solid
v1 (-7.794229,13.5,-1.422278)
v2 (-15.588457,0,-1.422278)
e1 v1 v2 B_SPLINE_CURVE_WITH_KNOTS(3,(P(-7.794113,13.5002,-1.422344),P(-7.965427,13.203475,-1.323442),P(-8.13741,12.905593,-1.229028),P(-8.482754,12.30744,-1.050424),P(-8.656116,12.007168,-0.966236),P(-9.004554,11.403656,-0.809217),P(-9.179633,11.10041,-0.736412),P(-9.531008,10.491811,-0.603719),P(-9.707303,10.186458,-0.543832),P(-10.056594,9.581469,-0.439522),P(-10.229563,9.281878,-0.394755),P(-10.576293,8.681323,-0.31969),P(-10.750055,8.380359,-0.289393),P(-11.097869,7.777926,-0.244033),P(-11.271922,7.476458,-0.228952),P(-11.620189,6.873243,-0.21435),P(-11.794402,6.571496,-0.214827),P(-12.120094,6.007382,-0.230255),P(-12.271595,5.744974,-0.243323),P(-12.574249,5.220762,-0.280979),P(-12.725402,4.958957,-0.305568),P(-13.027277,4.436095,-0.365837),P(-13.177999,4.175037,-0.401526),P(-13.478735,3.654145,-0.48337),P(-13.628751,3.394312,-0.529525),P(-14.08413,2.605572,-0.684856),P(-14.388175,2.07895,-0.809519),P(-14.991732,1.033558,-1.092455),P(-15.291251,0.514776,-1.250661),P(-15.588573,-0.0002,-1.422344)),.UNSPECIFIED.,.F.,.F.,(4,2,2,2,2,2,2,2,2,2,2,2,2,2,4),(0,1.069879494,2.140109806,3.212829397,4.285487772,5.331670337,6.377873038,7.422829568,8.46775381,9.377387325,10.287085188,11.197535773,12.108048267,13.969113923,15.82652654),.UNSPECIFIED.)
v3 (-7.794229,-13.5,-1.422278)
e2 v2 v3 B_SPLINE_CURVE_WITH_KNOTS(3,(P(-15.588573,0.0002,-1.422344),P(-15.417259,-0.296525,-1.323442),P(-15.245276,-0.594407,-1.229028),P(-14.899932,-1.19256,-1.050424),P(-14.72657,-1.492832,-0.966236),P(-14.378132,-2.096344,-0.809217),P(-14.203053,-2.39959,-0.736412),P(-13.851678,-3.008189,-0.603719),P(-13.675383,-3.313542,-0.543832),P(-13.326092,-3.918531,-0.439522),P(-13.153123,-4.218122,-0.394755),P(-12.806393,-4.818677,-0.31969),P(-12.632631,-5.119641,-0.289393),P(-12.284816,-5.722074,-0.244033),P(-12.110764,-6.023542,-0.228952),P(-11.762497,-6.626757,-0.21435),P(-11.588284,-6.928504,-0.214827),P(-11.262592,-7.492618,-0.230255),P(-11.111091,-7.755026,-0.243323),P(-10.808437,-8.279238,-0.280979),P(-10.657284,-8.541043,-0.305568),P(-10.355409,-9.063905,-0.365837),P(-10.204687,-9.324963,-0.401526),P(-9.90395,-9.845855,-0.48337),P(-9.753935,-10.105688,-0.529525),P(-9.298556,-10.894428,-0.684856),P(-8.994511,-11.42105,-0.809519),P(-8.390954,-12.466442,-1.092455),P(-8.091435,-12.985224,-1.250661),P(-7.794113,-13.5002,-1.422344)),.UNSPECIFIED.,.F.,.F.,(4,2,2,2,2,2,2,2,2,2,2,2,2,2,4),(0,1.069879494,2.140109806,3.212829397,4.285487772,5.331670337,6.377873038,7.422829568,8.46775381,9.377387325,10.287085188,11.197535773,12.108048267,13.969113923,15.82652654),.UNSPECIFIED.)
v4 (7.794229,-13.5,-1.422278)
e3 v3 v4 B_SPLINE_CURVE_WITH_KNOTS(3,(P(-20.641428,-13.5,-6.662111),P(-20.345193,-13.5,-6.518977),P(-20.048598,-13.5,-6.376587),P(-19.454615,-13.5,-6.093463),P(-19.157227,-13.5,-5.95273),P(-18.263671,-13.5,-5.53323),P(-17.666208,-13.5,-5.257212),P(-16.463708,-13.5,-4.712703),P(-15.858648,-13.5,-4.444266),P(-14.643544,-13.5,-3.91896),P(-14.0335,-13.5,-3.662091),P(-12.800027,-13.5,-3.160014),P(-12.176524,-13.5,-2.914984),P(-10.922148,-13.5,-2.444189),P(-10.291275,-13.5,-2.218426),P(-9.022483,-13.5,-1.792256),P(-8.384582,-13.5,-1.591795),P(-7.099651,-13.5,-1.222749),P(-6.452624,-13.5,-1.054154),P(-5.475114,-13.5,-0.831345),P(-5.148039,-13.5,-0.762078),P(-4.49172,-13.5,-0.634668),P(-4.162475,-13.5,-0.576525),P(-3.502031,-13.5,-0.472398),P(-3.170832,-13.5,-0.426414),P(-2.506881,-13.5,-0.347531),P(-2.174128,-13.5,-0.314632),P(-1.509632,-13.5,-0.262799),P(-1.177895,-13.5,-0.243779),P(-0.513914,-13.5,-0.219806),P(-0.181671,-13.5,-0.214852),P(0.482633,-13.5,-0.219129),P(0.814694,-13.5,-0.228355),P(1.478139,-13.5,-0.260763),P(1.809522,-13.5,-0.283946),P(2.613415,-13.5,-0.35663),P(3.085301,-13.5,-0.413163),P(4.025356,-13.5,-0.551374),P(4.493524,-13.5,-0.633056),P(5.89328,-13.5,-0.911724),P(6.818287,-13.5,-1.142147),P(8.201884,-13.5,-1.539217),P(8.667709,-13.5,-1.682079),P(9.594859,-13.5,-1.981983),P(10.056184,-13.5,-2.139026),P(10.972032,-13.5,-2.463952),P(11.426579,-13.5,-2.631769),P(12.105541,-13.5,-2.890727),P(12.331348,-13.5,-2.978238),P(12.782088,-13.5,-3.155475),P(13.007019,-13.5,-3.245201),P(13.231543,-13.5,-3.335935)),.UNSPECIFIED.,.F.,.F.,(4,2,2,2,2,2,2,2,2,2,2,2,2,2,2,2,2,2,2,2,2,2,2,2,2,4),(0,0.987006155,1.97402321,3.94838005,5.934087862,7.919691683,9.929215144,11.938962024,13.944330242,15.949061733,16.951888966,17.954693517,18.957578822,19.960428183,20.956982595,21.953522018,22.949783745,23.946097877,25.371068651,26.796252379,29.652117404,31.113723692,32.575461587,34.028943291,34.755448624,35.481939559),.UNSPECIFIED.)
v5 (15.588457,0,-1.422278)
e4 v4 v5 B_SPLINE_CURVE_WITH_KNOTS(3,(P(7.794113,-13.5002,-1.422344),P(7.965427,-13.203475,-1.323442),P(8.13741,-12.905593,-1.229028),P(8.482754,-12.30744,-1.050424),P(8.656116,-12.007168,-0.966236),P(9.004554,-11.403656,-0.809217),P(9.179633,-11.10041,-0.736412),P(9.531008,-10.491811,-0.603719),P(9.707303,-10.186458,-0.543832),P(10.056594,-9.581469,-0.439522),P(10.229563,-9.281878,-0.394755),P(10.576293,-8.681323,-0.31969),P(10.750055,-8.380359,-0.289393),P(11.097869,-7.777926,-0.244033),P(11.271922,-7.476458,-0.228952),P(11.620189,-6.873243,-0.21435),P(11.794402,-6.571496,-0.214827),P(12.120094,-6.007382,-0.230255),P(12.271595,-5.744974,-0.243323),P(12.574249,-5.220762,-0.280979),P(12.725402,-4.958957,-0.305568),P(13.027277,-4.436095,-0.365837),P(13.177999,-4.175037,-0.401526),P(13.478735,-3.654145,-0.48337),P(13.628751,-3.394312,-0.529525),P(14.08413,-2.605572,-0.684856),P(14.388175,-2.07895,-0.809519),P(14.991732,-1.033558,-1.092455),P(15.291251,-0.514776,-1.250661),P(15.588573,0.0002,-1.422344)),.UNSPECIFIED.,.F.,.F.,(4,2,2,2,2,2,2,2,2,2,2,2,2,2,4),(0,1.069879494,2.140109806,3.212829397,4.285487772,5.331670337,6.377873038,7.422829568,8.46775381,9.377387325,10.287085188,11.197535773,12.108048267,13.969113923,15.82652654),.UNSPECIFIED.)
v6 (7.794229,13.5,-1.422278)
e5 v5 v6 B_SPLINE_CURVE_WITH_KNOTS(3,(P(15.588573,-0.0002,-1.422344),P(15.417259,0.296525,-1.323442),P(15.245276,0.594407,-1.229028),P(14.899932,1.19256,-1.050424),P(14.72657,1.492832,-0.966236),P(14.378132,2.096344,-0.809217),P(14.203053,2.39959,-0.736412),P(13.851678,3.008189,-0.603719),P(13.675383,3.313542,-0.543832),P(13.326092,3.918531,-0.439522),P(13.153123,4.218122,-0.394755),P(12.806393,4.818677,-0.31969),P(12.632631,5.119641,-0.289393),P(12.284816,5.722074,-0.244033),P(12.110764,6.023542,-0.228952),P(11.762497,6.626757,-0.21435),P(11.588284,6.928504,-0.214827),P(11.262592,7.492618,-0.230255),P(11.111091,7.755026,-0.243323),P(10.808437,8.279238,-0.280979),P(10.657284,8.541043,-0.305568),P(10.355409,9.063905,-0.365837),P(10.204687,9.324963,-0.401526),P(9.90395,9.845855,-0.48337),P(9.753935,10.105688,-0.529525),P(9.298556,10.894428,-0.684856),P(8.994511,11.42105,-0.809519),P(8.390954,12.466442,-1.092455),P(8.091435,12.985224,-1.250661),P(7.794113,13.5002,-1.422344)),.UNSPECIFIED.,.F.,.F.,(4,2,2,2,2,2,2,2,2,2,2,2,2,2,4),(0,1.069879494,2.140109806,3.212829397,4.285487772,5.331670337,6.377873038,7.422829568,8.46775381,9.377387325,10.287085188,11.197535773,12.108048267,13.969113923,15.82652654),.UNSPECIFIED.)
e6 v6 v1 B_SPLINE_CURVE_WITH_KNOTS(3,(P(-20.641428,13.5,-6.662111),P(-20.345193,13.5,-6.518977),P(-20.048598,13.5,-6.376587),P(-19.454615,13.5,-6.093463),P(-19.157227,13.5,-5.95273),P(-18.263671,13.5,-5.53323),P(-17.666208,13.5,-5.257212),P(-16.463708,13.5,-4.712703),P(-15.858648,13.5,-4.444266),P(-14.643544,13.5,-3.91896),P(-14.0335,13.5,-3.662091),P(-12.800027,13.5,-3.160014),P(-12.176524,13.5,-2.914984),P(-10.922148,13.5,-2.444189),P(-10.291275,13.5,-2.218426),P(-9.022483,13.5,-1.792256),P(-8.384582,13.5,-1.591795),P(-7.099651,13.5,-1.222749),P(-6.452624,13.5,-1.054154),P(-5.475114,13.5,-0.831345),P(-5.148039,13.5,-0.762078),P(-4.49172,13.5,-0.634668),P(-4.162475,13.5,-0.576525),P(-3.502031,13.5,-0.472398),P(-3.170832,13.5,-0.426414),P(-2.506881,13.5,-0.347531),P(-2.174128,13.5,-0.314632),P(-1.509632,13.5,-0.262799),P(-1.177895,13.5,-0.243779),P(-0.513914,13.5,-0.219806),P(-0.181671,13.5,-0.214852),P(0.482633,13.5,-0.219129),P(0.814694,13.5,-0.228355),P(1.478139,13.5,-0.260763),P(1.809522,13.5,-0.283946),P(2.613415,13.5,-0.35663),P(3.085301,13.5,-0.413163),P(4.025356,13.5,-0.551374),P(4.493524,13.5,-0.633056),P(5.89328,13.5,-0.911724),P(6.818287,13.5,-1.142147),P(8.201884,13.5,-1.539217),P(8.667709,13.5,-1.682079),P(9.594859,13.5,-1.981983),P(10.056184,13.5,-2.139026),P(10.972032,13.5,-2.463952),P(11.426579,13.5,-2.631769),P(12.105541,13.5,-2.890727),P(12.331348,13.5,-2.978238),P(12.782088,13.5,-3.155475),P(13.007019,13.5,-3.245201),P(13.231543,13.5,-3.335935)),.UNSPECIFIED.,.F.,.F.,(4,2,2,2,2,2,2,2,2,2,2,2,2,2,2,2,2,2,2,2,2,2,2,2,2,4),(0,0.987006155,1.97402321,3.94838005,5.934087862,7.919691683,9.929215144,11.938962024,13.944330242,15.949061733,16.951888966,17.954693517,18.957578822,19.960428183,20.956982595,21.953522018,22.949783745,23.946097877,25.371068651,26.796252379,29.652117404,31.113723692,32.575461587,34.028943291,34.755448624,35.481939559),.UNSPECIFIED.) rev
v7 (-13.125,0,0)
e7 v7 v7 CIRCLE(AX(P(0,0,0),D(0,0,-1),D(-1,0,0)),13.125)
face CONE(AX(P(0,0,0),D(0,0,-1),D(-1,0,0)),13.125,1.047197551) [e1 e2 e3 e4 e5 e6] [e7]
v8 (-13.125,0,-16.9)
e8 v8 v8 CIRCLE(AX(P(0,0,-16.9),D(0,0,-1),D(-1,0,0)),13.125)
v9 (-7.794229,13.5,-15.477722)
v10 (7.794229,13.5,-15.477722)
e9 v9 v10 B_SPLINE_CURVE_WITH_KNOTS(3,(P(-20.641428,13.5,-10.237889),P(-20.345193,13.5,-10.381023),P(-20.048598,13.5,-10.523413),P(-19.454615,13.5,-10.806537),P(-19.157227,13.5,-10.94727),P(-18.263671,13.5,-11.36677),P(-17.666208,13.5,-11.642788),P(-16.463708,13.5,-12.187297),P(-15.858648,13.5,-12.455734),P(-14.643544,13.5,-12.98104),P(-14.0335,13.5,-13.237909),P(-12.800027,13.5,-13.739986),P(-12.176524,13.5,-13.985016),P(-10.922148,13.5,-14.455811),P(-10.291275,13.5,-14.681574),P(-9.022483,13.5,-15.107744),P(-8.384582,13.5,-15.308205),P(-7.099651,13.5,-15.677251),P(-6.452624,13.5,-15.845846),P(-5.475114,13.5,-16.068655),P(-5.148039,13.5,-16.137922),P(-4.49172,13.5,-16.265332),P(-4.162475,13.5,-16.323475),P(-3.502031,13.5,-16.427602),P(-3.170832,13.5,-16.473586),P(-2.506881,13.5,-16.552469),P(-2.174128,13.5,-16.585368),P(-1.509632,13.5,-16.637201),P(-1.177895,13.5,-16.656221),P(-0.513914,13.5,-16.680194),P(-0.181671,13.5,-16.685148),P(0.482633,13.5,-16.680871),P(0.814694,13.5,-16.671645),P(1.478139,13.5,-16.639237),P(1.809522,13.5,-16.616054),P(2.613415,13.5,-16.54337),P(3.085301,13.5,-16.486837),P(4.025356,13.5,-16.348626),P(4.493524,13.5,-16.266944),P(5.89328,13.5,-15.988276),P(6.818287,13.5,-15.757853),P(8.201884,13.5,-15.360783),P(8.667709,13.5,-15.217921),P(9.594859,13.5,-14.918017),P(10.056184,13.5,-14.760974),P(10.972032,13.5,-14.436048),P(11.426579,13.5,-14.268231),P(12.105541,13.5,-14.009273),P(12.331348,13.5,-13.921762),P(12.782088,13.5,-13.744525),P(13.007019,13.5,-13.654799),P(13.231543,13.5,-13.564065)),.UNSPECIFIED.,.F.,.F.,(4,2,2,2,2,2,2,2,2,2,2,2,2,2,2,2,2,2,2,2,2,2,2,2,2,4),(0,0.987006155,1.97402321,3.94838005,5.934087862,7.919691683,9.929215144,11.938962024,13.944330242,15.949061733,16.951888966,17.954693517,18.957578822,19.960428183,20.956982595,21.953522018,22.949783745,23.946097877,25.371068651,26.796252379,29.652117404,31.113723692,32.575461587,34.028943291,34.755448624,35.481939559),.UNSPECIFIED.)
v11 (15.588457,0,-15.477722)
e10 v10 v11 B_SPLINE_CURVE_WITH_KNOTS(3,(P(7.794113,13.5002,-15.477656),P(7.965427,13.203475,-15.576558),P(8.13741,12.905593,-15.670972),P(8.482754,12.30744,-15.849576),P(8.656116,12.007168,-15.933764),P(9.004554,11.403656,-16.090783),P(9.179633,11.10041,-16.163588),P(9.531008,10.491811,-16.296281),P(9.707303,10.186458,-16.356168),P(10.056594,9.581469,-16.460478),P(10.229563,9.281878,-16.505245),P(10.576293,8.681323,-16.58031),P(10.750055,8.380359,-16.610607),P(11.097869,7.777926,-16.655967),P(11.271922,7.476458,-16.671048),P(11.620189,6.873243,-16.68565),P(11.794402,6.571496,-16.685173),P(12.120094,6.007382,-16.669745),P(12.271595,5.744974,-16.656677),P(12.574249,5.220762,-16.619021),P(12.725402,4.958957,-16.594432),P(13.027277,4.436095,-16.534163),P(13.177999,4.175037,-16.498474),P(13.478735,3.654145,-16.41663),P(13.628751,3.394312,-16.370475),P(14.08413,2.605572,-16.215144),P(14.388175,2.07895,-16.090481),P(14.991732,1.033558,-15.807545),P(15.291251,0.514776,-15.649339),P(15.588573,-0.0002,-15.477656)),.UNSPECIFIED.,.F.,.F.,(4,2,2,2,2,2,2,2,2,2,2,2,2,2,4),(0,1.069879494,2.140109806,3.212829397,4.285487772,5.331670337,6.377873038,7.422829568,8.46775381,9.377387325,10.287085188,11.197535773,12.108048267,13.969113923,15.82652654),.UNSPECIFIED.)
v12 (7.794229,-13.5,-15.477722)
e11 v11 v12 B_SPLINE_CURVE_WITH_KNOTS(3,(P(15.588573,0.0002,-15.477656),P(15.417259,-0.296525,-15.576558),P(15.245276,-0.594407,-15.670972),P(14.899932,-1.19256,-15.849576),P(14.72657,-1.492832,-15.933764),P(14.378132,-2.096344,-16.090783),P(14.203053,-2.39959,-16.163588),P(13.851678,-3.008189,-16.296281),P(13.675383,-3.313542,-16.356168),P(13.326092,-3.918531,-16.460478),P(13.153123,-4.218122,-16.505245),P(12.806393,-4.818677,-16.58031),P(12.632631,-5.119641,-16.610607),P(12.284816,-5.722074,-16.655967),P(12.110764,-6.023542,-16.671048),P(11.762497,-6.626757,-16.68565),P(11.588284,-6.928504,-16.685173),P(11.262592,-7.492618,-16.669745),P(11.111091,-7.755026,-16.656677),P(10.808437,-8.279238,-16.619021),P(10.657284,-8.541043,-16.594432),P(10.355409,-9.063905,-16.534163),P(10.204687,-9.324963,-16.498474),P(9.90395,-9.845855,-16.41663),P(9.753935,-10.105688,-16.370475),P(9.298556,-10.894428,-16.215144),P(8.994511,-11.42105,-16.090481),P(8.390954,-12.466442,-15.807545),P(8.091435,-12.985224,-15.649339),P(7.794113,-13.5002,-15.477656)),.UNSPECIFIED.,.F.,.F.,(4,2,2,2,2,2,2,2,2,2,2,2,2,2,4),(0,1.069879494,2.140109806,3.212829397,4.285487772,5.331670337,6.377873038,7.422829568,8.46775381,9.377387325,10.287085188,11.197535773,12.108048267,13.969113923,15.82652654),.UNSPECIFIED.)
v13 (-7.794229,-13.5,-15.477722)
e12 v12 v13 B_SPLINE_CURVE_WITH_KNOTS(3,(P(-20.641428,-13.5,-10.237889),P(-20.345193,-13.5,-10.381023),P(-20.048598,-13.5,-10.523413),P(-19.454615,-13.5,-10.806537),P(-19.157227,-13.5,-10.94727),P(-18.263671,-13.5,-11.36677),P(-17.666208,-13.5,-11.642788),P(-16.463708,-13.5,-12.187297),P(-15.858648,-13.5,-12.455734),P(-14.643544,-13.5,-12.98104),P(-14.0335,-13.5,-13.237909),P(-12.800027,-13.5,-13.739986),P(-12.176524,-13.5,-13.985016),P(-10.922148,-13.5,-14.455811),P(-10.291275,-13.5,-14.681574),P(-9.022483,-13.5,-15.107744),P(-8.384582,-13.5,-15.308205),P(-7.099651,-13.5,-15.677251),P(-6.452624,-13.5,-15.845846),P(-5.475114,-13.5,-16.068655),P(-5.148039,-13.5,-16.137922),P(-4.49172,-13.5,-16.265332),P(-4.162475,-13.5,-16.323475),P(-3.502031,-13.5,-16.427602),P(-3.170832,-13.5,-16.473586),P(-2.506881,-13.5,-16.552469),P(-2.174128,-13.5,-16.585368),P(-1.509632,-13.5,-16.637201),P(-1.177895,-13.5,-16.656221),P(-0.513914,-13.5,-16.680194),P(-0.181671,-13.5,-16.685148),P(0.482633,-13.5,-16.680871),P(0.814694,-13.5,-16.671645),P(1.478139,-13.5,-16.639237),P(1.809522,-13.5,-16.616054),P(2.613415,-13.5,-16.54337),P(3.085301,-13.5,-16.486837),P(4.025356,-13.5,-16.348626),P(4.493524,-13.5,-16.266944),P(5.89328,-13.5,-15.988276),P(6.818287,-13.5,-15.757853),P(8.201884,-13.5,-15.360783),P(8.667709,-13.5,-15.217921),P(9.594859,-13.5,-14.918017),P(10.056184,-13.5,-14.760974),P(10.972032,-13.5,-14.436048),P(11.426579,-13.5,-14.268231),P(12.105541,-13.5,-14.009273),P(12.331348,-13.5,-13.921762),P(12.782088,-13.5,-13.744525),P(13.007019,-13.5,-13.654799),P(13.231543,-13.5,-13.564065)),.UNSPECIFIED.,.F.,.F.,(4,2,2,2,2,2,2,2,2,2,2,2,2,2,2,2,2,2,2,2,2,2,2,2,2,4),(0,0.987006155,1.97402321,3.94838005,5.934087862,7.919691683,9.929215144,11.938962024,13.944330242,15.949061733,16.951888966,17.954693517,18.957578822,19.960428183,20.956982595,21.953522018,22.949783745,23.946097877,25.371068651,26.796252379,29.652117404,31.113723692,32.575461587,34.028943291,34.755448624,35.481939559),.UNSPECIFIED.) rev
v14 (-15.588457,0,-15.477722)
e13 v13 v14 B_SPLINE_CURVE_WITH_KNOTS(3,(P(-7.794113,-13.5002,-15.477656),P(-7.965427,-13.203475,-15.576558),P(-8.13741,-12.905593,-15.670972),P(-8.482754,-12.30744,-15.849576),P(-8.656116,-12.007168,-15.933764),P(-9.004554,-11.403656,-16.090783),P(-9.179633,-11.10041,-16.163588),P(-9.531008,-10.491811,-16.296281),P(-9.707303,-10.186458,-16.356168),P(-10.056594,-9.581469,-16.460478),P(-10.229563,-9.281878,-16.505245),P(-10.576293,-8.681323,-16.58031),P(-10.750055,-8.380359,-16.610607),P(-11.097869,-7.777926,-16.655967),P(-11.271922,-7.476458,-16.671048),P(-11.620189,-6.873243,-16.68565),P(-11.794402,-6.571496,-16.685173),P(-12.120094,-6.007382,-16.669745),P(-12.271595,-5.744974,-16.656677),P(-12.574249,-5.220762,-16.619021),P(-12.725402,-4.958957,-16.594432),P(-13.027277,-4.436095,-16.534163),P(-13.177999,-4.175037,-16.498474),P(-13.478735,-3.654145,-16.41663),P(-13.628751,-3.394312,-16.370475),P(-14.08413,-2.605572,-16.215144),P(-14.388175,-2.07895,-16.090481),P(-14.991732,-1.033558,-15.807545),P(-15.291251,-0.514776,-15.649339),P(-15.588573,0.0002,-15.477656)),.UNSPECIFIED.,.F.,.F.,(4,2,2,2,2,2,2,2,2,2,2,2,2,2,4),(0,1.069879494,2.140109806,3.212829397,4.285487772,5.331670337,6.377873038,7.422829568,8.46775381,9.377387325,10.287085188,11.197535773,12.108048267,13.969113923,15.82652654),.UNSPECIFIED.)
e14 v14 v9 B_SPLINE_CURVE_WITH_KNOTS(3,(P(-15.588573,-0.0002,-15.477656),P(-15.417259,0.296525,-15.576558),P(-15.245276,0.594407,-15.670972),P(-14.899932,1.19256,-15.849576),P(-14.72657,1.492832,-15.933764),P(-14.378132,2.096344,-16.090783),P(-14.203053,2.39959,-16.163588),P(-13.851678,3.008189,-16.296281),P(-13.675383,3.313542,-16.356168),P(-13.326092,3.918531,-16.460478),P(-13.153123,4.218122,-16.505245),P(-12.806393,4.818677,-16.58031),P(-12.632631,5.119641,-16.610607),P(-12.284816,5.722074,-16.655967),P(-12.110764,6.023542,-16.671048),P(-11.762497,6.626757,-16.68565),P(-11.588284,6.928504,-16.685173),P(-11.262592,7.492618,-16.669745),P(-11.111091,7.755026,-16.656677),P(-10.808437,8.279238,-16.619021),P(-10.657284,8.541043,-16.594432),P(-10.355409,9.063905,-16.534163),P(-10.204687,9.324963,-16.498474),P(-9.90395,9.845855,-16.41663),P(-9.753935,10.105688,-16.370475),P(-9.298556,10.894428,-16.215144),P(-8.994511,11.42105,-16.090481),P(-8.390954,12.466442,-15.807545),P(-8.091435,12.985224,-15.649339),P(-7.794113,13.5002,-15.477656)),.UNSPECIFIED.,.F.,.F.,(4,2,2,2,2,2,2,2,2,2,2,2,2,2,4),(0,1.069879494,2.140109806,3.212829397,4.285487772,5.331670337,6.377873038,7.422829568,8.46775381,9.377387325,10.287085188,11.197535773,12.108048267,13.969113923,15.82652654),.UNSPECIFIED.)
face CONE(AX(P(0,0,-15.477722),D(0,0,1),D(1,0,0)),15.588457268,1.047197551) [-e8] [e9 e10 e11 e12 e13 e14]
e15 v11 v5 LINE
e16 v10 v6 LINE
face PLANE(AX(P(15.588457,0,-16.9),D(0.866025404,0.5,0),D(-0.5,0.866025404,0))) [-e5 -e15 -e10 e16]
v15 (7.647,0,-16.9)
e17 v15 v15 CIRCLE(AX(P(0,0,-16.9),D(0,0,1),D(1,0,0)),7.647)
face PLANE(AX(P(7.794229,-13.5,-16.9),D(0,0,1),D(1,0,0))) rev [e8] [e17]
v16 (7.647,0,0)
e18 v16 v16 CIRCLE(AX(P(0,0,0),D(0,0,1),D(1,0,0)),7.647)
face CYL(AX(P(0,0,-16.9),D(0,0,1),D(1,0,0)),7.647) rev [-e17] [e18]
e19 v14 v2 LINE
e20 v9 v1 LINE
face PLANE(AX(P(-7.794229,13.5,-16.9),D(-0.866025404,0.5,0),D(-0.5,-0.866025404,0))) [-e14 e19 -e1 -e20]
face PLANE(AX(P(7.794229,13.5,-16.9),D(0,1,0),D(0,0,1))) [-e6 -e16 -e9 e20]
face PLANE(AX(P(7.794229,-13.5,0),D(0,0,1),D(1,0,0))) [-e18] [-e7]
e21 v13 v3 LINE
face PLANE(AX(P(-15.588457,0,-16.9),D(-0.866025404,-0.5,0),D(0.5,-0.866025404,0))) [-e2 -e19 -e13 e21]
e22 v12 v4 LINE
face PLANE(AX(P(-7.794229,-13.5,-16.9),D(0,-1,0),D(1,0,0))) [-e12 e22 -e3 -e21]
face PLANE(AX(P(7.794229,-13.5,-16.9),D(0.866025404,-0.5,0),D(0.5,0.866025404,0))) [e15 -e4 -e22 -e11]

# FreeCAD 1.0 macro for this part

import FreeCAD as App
import Part
import Sketcher

V = App.Vector
Q = App.Units.Quantity


def add_polygon(sketch, points):
    """Adds a closed chain of lines whose ends are joined by coincident constraints."""
    first, n = sketch.GeometryCount, len(points)
    for a, b in zip(points, points[1:] + points[:1]):
        sketch.addGeometry(Part.LineSegment(App.Vector(*a, 0), App.Vector(*b, 0)), False)
    for i in range(n):
        sketch.addConstraint(Sketcher.Constraint("Coincident", first + i, 2, first + (i + 1) % n, 1))

doc = App.newDocument("Part")
params = doc.addObject("Spreadsheet::Sheet", "Params")
for row, (alias, value) in enumerate([
    ("pad1_length", "16.9 mm"),
    ("groove_angle", "360 deg"),
], start=1):
    params.set(f"A{row}", alias)
    params.set(f"B{row}", "=" + value)
    params.setAlias(f"B{row}", alias)

body = doc.addObject("PartDesign::Body", "Body")

# Sketch on XY plane
sketch1 = body.newObject("Sketcher::SketchObject", "Sketch")
sketch1.AttachmentSupport = (doc.getObject("XY_Plane"), [""])
sketch1.MapMode = "FlatFace"
add_polygon(sketch1, [(7.794229, -13.5), (15.588457, 0), (7.794229, 13.5), (-7.794229, 13.5), (-15.588457, 0), (-7.794229, -13.5)])  # lines 0-5
sketch1.addGeometry(Part.Circle(V(0, 0, 0), V(0, 0, 1), 7.647), False)  # 6
sketch1.addConstraint([
    Sketcher.Constraint("Horizontal", 2),
    Sketcher.Constraint("Horizontal", 5),
    Sketcher.Constraint("Coincident", 6, 3, -1, 1),
    Sketcher.Constraint("Symmetric", 0, 2, 3, 2, -1, 1),
    Sketcher.Constraint("Symmetric", 1, 2, 4, 2, -1, 1),
    Sketcher.Constraint("PointOnObject", 0, 2, -1),
    Sketcher.Constraint("Parallel", 0, 3),
    Sketcher.Constraint("Vertical", 2, 2, 4, 2),
    Sketcher.Constraint("Angle", 0, Q("60 deg")),
    Sketcher.Constraint("Diameter", 6, Q("15.294 mm")),
    Sketcher.Constraint("DistanceY", 4, 2, 2, 2, Q("27 mm")),
    Sketcher.Constraint("DistanceX", 2, 2, 2, 1, Q("15.588457 mm")),
])
pad1 = body.newObject("PartDesign::Pad", "Pad")
pad1.Profile = sketch1
pad1.setExpression("Length", "Params.pad1_length")
pad1.Reversed = True

# Sketch on XZ plane
sketch2 = body.newObject("Sketcher::SketchObject", "Sketch001")
sketch2.AttachmentSupport = (doc.getObject("XZ_Plane"), [""])
sketch2.MapMode = "FlatFace"
add_polygon(sketch2, [(-13.125, -16.9), (-15.588457, -16.9), (-15.588457, -15.477722)])  # lines 0-2
add_polygon(sketch2, [(-15.588457, -1.422278), (-15.588457, 0), (-13.125, 0)])  # lines 3-5
sketch2.addConstraint([
    Sketcher.Constraint("Horizontal", 0),
    Sketcher.Constraint("Vertical", 1),
    Sketcher.Constraint("Vertical", 3),
    Sketcher.Constraint("Horizontal", 4),
    Sketcher.Constraint("PointOnObject", 3, 2, -1),
    Sketcher.Constraint("Vertical", 1, 2, 3, 2),
    Sketcher.Constraint("Vertical", 2, 2, 4, 2),
    Sketcher.Constraint("Equal", 1, 3),
    Sketcher.Constraint("Angle", 2, Q("-30 deg")),
    Sketcher.Constraint("DistanceY", 0, 2, -1, 1, Q("16.9 mm")),
    Sketcher.Constraint("DistanceX", 2, 2, -1, 1, Q("13.125 mm")),
    Sketcher.Constraint("DistanceX", 0, 2, 0, 1, Q("2.463457 mm")),
])
groove = body.newObject("PartDesign::Groove", "Groove")
groove.Profile = sketch2
groove.ReferenceAxis = (sketch2, ["V_Axis"])
groove.setExpression("Angle", "Params.groove_angle")

doc.recompute()
